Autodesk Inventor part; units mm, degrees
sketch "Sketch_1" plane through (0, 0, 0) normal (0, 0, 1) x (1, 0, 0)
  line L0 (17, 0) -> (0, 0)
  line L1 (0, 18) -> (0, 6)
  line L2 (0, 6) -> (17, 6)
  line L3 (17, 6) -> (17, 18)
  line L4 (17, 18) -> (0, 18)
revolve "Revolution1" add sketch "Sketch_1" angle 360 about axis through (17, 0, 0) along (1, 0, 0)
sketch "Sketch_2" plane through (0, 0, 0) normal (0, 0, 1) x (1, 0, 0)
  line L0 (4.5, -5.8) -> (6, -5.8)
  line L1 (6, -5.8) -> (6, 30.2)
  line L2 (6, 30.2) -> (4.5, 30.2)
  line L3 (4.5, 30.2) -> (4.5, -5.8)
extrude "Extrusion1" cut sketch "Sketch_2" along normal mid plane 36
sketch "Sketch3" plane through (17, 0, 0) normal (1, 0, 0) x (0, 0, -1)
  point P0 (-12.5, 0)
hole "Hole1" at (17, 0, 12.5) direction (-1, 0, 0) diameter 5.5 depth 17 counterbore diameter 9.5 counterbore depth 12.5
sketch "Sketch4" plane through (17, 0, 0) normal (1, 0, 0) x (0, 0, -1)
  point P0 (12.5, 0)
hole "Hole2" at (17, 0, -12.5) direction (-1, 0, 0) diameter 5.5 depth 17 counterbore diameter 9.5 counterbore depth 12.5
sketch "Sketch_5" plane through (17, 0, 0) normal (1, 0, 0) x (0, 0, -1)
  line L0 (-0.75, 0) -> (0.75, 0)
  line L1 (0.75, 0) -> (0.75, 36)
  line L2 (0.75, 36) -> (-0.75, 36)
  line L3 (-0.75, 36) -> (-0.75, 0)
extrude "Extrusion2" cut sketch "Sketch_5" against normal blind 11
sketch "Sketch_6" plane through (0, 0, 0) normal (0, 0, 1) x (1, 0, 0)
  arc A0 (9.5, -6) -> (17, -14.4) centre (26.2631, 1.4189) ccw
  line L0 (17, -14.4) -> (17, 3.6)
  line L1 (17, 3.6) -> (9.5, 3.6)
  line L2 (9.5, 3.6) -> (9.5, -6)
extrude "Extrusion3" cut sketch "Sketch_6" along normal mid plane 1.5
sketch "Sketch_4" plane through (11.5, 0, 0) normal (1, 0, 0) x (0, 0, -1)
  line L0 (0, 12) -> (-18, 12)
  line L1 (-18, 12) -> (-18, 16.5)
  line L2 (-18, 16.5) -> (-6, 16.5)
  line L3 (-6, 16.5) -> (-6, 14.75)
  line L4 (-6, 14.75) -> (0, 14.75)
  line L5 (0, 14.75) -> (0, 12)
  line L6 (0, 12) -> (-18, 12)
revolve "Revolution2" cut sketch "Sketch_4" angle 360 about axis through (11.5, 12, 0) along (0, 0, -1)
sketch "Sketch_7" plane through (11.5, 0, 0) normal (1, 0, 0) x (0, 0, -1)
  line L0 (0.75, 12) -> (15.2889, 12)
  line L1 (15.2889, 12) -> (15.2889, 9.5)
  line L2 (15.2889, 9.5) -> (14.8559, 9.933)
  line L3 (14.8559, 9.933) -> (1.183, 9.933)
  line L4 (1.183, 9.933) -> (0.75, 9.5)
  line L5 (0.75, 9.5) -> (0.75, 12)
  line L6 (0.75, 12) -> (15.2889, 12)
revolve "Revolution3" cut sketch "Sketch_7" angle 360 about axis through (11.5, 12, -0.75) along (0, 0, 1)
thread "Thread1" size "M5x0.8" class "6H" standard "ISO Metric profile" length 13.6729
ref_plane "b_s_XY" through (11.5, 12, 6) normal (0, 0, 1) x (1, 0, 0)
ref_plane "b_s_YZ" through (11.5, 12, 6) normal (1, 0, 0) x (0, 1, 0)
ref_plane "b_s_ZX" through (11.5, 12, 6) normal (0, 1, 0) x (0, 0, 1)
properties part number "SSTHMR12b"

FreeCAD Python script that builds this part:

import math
import FreeCAD as App
import Part
import Sketcher
from FreeCAD import Vector


def add_polygon(sketch, points):
    """Adds a closed chain of lines whose ends are joined by coincident constraints."""
    first, n = sketch.GeometryCount, len(points)
    for a, b in zip(points, points[1:] + points[:1]):
        sketch.addGeometry(Part.LineSegment(App.Vector(*a, 0), App.Vector(*b, 0)), False)
    for i in range(n):
        sketch.addConstraint(Sketcher.Constraint("Coincident", first + i, 2, first + (i + 1) % n, 1))

doc = App.newDocument("Part")
body = doc.addObject("PartDesign::Body", "Body")

# Sketch on XY plane
sketch1 = body.newObject("Sketcher::SketchObject", "Sketch")
sketch1.AttachmentSupport = (doc.getObject("XY_Plane"), [""])
sketch1.MapMode = "FlatFace"
add_polygon(sketch1, [(17, 18), (0, 18), (0, 6), (17, 6)])  # lines 0-3
sketch1.addConstraint(Sketcher.Constraint("Horizontal", 0))
sketch1.addConstraint(Sketcher.Constraint("Vertical", 1))
sketch1.addConstraint(Sketcher.Constraint("Horizontal", 2))
sketch1.addConstraint(Sketcher.Constraint("Vertical", 3))
sketch1.addConstraint(Sketcher.Constraint("PointOnObject", 0, 2, -2))
sketch1.addConstraint(Sketcher.Constraint("DistanceX", 0, 2, 0, 1, 17.0))
sketch1.addConstraint(Sketcher.Constraint("DistanceY", 1, 2, 1, 1, 12.0))
sketch1.addConstraint(Sketcher.Constraint("DistanceY", -1, 1, 0, 2, 18.0))
revolution = body.newObject("PartDesign::Revolution", "Revolution")
revolution.Profile = sketch1
revolution.ReferenceAxis = (sketch1, ["H_Axis"])
revolution.Angle = 360

# Sketch on XY plane
sketch2 = body.newObject("Sketcher::SketchObject", "Sketch001")
sketch2.AttachmentSupport = (doc.getObject("XY_Plane"), [""])
sketch2.MapMode = "FlatFace"
add_polygon(sketch2, [(4.5, 30.2), (4.5, -5.8), (6, -5.8), (6, 30.2)])  # lines 0-3
sketch2.addConstraint(Sketcher.Constraint("Vertical", 0))
sketch2.addConstraint(Sketcher.Constraint("Horizontal", 1))
sketch2.addConstraint(Sketcher.Constraint("Vertical", 2))
sketch2.addConstraint(Sketcher.Constraint("Horizontal", 3))
sketch2.addConstraint(Sketcher.Constraint("DistanceY", 0, 2, 0, 1, 36.0))
sketch2.addConstraint(Sketcher.Constraint("DistanceX", 1, 1, 1, 2, 1.5))
sketch2.addConstraint(Sketcher.Constraint("DistanceX", -1, 1, 1, 2, 6.0))
sketch2.addConstraint(Sketcher.Constraint("DistanceY", 0, 2, -1, 1, 5.8))
pocket1 = body.newObject("PartDesign::Pocket", "Pocket")
pocket1.Profile = sketch2
pocket1.Length = 36
pocket1.Midplane = True

# Sketch on YZ plane
sketch3 = body.newObject("Sketcher::SketchObject", "Sketch002")
sketch3.AttachmentSupport = (doc.getObject("YZ_Plane"), [""])
sketch3.MapMode = "FlatFace"
sketch3.AttachmentOffset = App.Placement(Vector(0, 0, 17), App.Rotation())
sketch3.addGeometry(Part.Circle(Vector(0, 12.5, 0), Vector(0, 0, 1), 2.75), False)
sketch3.addConstraint(Sketcher.Constraint("PointOnObject", 0, 3, -2))
sketch3.addConstraint(Sketcher.Constraint("Diameter", 0, 5.5))
sketch3.addConstraint(Sketcher.Constraint("DistanceY", -1, 1, 0, 3, 12.5))
doc.recompute()
hole = body.newObject("PartDesign::Hole", "Hole")
hole.Profile = sketch3
hole.ThreadType = "None"
hole.Diameter = 5.5
hole.DepthType = "Dimension"
hole.Depth = 17
hole.DrillPoint = "Flat"
hole.HoleCutType = "Counterbore"
hole.HoleCutDiameter = 9.5
hole.HoleCutDepth = 12.5

# Sketch on YZ plane
sketch4 = body.newObject("Sketcher::SketchObject", "Sketch003")
sketch4.AttachmentSupport = (doc.getObject("YZ_Plane"), [""])
sketch4.MapMode = "FlatFace"
sketch4.AttachmentOffset = App.Placement(Vector(0, 0, 17), App.Rotation())
sketch4.addGeometry(Part.Circle(Vector(0, -12.5, 0), Vector(0, 0, 1), 2.75), False)
sketch4.addConstraint(Sketcher.Constraint("PointOnObject", 0, 3, -2))
sketch4.addConstraint(Sketcher.Constraint("Diameter", 0, 5.5))
sketch4.addConstraint(Sketcher.Constraint("DistanceY", 0, 3, -1, 1, 12.5))
doc.recompute()
hole2 = body.newObject("PartDesign::Hole", "Hole001")
hole2.Profile = sketch4
hole2.ThreadType = "None"
hole2.Diameter = 5.5
hole2.DepthType = "Dimension"
hole2.Depth = 17
hole2.DrillPoint = "Flat"
hole2.HoleCutType = "Counterbore"
hole2.HoleCutDiameter = 9.5
hole2.HoleCutDepth = 12.5

# Sketch on YZ plane
sketch5 = body.newObject("Sketcher::SketchObject", "Sketch004")
sketch5.AttachmentSupport = (doc.getObject("YZ_Plane"), [""])
sketch5.MapMode = "FlatFace"
sketch5.AttachmentOffset = App.Placement(Vector(0, 0, 17), App.Rotation())
add_polygon(sketch5, [(36, 0.75), (0, 0.75), (0, -0.75), (36, -0.75)])  # lines 0-3
sketch5.addConstraint(Sketcher.Constraint("Horizontal", 0))
sketch5.addConstraint(Sketcher.Constraint("Vertical", 1))
sketch5.addConstraint(Sketcher.Constraint("Horizontal", 2))
sketch5.addConstraint(Sketcher.Constraint("Vertical", 3))
sketch5.addConstraint(Sketcher.Constraint("Symmetric", 0, 2, 1, 2, -1, 1))
sketch5.addConstraint(Sketcher.Constraint("DistanceX", 0, 2, 0, 1, 36.0))
sketch5.addConstraint(Sketcher.Constraint("DistanceY", 1, 2, 1, 1, 1.5))
pocket2 = body.newObject("PartDesign::Pocket", "Pocket001")
pocket2.Profile = sketch5
pocket2.Length = 11

# Sketch on XY plane
sketch6 = body.newObject("Sketcher::SketchObject", "Sketch005")
sketch6.AttachmentSupport = (doc.getObject("XY_Plane"), [""])
sketch6.MapMode = "FlatFace"
sketch6.addGeometry(Part.LineSegment(Vector(9.5, 3.6, 0), Vector(9.5, -6, 0)), False)
sketch6.addGeometry(Part.ArcOfCircle(Part.Circle(Vector(26.2631, 1.4189, 0), Vector(0, 0, 1), 18.331437), math.radians(-156.127099), math.radians(-120.352032)), False)
sketch6.addGeometry(Part.LineSegment(Vector(17, -14.4, 0), Vector(17, 3.6, 0)), False)
sketch6.addGeometry(Part.LineSegment(Vector(17, 3.6, 0), Vector(9.5, 3.6, 0)), False)
sketch6.addConstraint(Sketcher.Constraint("Coincident", 0, 2, 1, 1))
sketch6.addConstraint(Sketcher.Constraint("Coincident", 1, 2, 2, 1))
sketch6.addConstraint(Sketcher.Constraint("Coincident", 2, 2, 3, 1))
sketch6.addConstraint(Sketcher.Constraint("Coincident", 3, 2, 0, 1))
sketch6.addConstraint(Sketcher.Constraint("Vertical", 0))
sketch6.addConstraint(Sketcher.Constraint("Vertical", 2))
sketch6.addConstraint(Sketcher.Constraint("Horizontal", 3))
sketch6.addConstraint(Sketcher.Constraint("DistanceY", 2, 1, 2, 2, 18.0))
sketch6.addConstraint(Sketcher.Constraint("DistanceX", 3, 2, 3, 1, 7.5))
sketch6.addConstraint(Sketcher.Constraint("DistanceY", 0, 2, 0, 1, 9.6))
sketch6.addConstraint(Sketcher.Constraint("DistanceY", 0, 2, -1, 1, 6.0))
sketch6.addConstraint(Sketcher.Constraint("DistanceX", -1, 1, 1, 2, 17.0))
sketch6.addConstraint(Sketcher.Constraint("Radius", 1, 18.3314))
pocket3 = body.newObject("PartDesign::Pocket", "Pocket002")
pocket3.Profile = sketch6
pocket3.Length = 1.5
pocket3.Midplane = True

# Sketch on YZ plane
sketch7 = body.newObject("Sketcher::SketchObject", "Sketch006")
sketch7.AttachmentSupport = (doc.getObject("YZ_Plane"), [""])
sketch7.MapMode = "FlatFace"
sketch7.AttachmentOffset = App.Placement(Vector(0, 0, 11.5), App.Rotation())
add_polygon(sketch7, [(12, 18), (12, 0), (14.75, 0), (14.75, 6), (16.5, 6), (16.5, 18)])  # lines 0-5
sketch7.addGeometry(Part.LineSegment(Vector(12, 18, 0), Vector(12, 0, 0)), True)  # axis
sketch7.addConstraint(Sketcher.Constraint("Vertical", 0))
sketch7.addConstraint(Sketcher.Constraint("Horizontal", 1))
sketch7.addConstraint(Sketcher.Constraint("Vertical", 2))
sketch7.addConstraint(Sketcher.Constraint("Horizontal", 3))
sketch7.addConstraint(Sketcher.Constraint("Vertical", 4))
sketch7.addConstraint(Sketcher.Constraint("Horizontal", 5))
sketch7.addConstraint(Sketcher.Constraint("Vertical", 6))
sketch7.addConstraint(Sketcher.Constraint("Coincident", 6, 1, 5, 2))
sketch7.addConstraint(Sketcher.Constraint("PointOnObject", 0, 2, -1))
sketch7.addConstraint(Sketcher.Constraint("PointOnObject", 6, 2, -1))
sketch7.addConstraint(Sketcher.Constraint("DistanceY", 0, 2, 0, 1, 18.0))
sketch7.addConstraint(Sketcher.Constraint("DistanceY", 2, 1, 2, 2, 6.0))
sketch7.addConstraint(Sketcher.Constraint("DistanceX", 5, 2, 5, 1, 4.5))
sketch7.addConstraint(Sketcher.Constraint("DistanceX", -1, 1, 0, 2, 12.0))
sketch7.addConstraint(Sketcher.Constraint("DistanceX", 1, 1, 1, 2, 2.75))
groove = body.newObject("PartDesign::Groove", "Groove")
groove.Profile = sketch7
groove.ReferenceAxis = (sketch7, ["Axis0"])
groove.Angle = 360

# Sketch on YZ plane
sketch8 = body.newObject("Sketcher::SketchObject", "Sketch007")
sketch8.AttachmentSupport = (doc.getObject("YZ_Plane"), [""])
sketch8.MapMode = "FlatFace"
sketch8.AttachmentOffset = App.Placement(Vector(0, 0, 11.5), App.Rotation())
add_polygon(sketch8, [(12, -15.2889), (12, -0.75), (9.5, -0.75), (9.933, -1.183), (9.933, -14.8559), (9.5, -15.2889)])  # lines 0-5
sketch8.addGeometry(Part.LineSegment(Vector(12, -15.2889, 0), Vector(12, -0.75, 0)), True)  # axis
sketch8.addConstraint(Sketcher.Constraint("Vertical", 0))
sketch8.addConstraint(Sketcher.Constraint("Horizontal", 1))
sketch8.addConstraint(Sketcher.Constraint("Vertical", 3))
sketch8.addConstraint(Sketcher.Constraint("Horizontal", 5))
sketch8.addConstraint(Sketcher.Constraint("Vertical", 6))
sketch8.addConstraint(Sketcher.Constraint("Coincident", 6, 1, 5, 2))
sketch8.addConstraint(Sketcher.Constraint("Perpendicular", 2, 4))
sketch8.addConstraint(Sketcher.Constraint("Horizontal", 1, 2, 6, 2))
sketch8.addConstraint(Sketcher.Constraint("Vertical", 1, 2, 4, 2))
sketch8.addConstraint(Sketcher.Constraint("Equal", 2, 4))
sketch8.addConstraint(Sketcher.Constraint("DistanceX", 1, 2, 1, 1, 2.5))
sketch8.addConstraint(Sketcher.Constraint("DistanceX", -1, 1, 0, 2, 12.0))
sketch8.addConstraint(Sketcher.Constraint("DistanceY", 0, 1, 0, 2, 14.539))
sketch8.addConstraint(Sketcher.Constraint("DistanceY", 3, 2, 3, 1, 13.673))
sketch8.addConstraint(Sketcher.Constraint("DistanceY", 0, 2, -1, 1, 0.75))
groove2 = body.newObject("PartDesign::Groove", "Groove001")
groove2.Profile = sketch8
groove2.ReferenceAxis = (sketch8, ["Axis0"])
groove2.Angle = 360

doc.recompute()
